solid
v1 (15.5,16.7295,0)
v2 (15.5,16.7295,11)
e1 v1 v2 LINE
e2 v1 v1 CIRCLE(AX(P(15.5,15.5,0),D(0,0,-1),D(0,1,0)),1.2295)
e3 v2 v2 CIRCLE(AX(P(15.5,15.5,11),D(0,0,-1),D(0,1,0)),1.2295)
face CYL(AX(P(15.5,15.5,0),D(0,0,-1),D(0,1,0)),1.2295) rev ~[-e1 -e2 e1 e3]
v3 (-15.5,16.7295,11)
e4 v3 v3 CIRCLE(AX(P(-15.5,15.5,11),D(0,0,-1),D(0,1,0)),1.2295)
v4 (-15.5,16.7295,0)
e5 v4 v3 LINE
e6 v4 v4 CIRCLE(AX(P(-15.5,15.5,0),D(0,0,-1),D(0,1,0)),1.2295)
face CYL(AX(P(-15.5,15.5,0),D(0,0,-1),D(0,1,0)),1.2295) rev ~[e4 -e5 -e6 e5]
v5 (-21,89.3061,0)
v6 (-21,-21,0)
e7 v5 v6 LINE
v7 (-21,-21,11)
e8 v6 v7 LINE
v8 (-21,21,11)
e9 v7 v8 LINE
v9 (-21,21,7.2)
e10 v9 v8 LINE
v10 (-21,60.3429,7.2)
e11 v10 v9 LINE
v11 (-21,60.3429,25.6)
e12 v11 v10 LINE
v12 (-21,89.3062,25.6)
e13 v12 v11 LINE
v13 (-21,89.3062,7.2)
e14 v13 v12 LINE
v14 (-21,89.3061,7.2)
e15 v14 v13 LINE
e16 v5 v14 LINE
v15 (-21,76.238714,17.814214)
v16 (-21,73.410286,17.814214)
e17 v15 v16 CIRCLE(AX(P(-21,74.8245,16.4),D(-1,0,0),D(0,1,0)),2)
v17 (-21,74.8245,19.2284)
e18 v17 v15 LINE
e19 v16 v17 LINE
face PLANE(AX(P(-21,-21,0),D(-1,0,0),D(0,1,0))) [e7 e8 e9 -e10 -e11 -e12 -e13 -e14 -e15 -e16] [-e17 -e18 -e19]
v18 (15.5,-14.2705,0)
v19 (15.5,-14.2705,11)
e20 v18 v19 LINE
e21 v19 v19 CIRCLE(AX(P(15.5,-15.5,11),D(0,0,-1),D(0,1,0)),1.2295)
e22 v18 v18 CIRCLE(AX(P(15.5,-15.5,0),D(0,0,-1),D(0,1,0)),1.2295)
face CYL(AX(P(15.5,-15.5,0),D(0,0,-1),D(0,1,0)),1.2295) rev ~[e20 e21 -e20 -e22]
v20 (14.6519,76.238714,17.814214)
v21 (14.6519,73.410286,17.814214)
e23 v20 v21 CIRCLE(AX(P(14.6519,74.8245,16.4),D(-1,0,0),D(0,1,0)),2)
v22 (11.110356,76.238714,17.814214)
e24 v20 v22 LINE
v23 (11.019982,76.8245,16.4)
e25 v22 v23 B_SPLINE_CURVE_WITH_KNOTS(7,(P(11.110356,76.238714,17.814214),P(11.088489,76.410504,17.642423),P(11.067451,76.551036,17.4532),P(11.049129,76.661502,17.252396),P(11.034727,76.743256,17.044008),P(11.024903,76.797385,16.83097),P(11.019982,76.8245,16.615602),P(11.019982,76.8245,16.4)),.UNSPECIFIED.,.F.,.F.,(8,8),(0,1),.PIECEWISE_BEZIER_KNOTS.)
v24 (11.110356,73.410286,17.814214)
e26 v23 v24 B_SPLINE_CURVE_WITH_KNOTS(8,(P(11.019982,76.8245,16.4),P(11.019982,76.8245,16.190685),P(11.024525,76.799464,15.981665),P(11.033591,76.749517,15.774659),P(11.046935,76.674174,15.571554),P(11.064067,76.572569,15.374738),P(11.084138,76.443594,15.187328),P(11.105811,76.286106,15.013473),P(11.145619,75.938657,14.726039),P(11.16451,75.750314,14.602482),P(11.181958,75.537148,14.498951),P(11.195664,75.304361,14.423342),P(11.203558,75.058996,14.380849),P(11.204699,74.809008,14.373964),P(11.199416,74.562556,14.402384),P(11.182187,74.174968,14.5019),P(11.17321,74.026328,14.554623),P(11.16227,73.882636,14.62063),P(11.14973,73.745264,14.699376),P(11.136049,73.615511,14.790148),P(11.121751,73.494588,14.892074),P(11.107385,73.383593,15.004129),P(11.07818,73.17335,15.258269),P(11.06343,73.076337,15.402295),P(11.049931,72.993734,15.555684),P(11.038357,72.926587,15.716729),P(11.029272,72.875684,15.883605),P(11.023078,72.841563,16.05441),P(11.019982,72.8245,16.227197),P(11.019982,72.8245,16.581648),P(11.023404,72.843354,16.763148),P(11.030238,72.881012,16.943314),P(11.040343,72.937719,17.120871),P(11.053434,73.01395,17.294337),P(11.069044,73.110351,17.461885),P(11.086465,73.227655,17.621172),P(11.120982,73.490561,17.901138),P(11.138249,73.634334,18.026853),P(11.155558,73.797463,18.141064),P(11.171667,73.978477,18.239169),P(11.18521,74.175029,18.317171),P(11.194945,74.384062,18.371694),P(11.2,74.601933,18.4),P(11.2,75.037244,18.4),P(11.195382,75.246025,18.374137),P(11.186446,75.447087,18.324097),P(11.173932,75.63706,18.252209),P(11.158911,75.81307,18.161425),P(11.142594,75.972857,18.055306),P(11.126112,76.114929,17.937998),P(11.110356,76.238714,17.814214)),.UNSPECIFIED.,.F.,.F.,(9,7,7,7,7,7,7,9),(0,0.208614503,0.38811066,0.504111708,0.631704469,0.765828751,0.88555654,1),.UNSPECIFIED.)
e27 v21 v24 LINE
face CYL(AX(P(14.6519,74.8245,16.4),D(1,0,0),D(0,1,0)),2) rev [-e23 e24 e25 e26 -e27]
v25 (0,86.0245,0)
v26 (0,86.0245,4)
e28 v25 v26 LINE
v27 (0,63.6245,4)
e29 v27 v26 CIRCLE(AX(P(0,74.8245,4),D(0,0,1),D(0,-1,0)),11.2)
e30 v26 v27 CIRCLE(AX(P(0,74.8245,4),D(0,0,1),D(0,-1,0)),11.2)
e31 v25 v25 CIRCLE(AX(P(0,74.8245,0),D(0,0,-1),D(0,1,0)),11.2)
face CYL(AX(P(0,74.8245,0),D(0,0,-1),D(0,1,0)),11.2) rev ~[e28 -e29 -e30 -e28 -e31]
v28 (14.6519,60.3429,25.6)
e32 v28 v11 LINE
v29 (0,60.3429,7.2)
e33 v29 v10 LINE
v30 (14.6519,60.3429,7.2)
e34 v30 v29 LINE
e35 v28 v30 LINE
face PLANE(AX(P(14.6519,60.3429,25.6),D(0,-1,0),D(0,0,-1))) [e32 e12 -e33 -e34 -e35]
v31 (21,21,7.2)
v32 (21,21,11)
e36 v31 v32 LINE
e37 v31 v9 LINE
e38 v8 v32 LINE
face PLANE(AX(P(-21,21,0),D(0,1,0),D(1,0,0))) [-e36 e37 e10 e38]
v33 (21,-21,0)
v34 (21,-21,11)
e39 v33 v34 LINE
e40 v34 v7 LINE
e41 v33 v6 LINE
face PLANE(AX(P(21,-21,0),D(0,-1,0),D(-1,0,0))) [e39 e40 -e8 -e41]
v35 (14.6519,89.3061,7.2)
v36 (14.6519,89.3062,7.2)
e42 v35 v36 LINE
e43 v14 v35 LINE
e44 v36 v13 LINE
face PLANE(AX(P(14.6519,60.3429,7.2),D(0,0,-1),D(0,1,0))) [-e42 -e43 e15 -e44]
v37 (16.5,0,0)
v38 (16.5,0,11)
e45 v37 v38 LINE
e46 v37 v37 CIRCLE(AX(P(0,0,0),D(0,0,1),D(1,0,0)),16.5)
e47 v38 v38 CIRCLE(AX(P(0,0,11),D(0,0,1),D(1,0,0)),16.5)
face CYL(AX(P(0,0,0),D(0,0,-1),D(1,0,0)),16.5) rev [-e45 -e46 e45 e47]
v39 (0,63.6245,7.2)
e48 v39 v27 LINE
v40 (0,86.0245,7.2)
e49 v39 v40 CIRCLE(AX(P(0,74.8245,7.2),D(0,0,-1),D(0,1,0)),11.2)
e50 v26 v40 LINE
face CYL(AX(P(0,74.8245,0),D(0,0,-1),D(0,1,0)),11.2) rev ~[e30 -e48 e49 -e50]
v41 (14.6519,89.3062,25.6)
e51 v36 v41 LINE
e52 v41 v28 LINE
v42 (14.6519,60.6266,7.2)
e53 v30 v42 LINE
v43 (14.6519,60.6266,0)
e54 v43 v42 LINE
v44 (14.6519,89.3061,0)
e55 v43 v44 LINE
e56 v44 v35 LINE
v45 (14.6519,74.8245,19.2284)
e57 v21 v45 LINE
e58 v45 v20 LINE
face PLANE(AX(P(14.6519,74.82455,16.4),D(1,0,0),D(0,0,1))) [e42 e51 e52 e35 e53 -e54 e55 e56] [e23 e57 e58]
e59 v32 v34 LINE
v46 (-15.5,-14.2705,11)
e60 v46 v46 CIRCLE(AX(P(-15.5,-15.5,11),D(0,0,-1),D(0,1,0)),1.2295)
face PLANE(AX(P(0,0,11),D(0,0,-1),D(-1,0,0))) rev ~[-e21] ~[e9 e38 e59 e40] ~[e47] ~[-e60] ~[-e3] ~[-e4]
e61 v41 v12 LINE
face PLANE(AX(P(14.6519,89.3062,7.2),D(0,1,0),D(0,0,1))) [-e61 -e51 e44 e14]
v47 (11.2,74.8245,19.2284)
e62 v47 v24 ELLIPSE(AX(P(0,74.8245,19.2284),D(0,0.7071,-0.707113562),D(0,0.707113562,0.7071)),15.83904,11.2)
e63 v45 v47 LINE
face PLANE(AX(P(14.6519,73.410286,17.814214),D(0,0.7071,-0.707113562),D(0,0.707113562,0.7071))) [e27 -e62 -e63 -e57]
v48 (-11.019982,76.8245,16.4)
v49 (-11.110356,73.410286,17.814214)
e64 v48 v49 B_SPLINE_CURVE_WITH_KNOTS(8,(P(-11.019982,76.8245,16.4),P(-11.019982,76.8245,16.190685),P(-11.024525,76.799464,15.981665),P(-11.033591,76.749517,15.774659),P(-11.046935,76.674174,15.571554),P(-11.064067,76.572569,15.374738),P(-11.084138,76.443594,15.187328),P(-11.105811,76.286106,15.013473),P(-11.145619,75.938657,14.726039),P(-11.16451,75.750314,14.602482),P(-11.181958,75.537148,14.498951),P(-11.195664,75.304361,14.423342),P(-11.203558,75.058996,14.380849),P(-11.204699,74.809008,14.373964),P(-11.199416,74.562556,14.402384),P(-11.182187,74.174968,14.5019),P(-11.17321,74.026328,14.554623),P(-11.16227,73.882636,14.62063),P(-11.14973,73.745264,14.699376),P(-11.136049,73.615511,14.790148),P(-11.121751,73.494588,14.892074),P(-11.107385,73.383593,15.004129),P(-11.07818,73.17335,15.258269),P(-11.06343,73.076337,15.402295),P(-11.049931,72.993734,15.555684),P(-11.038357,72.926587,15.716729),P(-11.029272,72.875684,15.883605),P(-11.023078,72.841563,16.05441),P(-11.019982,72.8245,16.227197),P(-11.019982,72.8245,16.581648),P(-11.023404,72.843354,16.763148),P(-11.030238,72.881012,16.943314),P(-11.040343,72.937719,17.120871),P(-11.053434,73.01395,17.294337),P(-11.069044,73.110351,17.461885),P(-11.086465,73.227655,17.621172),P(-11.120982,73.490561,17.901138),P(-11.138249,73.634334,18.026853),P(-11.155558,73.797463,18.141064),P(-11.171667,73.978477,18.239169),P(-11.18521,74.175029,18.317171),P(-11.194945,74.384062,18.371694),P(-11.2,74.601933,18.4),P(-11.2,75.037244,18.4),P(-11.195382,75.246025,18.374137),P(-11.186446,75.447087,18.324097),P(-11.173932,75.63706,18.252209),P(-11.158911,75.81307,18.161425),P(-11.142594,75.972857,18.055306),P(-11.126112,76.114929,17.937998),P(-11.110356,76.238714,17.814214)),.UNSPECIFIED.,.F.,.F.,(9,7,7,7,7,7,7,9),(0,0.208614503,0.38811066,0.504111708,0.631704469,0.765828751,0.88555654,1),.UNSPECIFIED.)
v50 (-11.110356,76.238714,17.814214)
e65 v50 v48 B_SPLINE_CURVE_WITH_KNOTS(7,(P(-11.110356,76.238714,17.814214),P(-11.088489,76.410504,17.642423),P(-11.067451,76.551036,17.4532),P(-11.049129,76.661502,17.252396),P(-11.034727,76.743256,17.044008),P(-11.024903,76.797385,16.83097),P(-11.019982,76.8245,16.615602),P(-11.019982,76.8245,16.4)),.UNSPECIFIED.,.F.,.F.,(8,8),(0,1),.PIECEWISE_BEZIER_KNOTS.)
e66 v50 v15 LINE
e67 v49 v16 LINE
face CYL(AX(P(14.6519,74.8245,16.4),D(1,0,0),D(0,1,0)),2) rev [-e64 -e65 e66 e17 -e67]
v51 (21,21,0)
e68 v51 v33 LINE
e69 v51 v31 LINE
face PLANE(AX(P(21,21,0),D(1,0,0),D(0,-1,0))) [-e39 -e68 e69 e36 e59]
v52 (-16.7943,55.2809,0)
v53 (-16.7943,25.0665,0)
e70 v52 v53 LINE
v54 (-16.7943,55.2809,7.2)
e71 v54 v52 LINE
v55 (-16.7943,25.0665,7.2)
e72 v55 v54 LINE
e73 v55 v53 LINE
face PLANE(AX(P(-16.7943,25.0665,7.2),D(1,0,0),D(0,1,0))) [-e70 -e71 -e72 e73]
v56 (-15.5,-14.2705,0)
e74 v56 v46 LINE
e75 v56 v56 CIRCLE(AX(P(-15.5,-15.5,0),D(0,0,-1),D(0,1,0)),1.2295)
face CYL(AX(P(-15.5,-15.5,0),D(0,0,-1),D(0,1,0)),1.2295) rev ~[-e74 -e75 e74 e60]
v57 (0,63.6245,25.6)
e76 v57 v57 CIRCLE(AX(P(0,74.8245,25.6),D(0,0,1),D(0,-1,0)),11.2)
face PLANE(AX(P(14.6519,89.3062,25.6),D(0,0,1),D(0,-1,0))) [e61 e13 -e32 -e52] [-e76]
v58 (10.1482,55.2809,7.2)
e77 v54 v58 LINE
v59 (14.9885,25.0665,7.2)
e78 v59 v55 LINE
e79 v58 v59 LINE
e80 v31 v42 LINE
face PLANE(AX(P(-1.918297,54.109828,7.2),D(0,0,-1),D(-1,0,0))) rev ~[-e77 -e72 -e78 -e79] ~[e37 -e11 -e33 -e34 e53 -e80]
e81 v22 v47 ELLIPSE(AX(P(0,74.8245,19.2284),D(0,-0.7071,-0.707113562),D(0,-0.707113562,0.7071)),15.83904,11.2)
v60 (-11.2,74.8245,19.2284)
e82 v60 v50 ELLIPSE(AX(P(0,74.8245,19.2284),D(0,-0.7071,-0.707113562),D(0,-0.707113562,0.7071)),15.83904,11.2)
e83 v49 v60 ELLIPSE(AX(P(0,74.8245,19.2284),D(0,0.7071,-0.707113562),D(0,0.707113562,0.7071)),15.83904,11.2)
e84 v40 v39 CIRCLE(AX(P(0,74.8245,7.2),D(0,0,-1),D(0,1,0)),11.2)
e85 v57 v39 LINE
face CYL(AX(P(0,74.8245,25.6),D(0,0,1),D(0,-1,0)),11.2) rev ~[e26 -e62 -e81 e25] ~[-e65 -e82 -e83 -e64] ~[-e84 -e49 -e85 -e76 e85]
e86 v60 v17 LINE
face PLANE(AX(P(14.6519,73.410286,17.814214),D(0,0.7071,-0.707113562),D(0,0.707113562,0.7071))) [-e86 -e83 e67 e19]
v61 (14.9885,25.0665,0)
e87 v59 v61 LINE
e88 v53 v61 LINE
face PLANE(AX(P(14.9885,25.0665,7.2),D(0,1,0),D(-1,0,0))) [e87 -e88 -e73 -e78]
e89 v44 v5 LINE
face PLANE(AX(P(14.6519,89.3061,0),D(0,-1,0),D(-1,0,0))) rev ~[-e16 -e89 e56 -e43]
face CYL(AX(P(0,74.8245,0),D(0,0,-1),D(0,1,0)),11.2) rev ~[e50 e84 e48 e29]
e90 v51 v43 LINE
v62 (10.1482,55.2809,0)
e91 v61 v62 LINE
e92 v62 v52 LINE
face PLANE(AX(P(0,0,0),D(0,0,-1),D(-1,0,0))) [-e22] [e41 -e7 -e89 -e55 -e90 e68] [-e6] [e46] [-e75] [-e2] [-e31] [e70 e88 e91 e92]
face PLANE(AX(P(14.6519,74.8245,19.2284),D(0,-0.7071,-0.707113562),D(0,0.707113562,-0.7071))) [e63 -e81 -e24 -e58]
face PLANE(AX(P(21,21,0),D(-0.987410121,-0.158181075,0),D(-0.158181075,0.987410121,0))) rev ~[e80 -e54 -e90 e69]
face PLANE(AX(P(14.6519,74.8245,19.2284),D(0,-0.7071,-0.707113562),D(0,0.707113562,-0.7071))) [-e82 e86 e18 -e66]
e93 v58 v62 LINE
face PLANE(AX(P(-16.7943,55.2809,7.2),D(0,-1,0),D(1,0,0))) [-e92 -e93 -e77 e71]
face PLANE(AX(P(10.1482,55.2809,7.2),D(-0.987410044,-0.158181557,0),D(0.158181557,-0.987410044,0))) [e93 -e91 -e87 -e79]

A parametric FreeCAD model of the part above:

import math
import FreeCAD as App
import Part
import Sketcher

V = App.Vector

doc = App.newDocument("Part")
params = doc.addObject("Spreadsheet::Sheet", "Params")
for row, (alias, value) in enumerate([
    ("sketch1_diameter", "33 mm"),
    ("sketch1_width", "42 mm"),
    ("pad1_length", "11 mm"),
    ("pocket1_length", "24 mm"),
    ("sketch3_diameter", "22.4 mm"),
    ("sketch3_width", "42 mm"),
    ("pad2_length", "7.2 mm"),
    ("pocket2_length", "194 mm"),
    ("sketch5_diameter", "9.5 mm"),
    ("pad3_length", "3 mm"),
    ("sketch6_radius", "2 mm"),
    ("sketch6_height", "18.4 mm"),
    ("pad4_length", "35.6519 mm"),
    ("sketch7_diameter", "5 mm"),
    ("pocket3_length", "682 mm"),
    ("sketch8_diameter", "22.4 mm"),
    ("pocket4_length", "21.6 mm"),
], start=1):
    params.set(f"A{row}", alias)
    params.set(f"B{row}", "=" + value)
    params.setAlias(f"B{row}", alias)

body = doc.addObject("PartDesign::Body", "Body")

sketch1 = doc.addObject("Sketcher::SketchObject", "Sketch")
body.addObject(sketch1)
sketch1.AttachmentSupport = (doc.XY_Plane, [""])
sketch1.MapMode = "FlatFace"
sketch1.addGeometry([
    Part.LineSegment(V(21, 21, 0), V(-21, 21, 0)),
    Part.LineSegment(V(-21, 21, 0), V(-21, -21, 0)),
    Part.LineSegment(V(-21, -21, 0), V(21, -21, 0)),
    Part.LineSegment(V(21, -21, 0), V(21, 21, 0)),
    Part.Circle(V(0, 0, 0), V(0, 0, 1), 16.5),
], False)
sketch1.addConstraint([
    Sketcher.Constraint("Coincident", 0, 2, 1, 1),
    Sketcher.Constraint("Coincident", 1, 2, 2, 1),
    Sketcher.Constraint("Coincident", 2, 2, 3, 1),
    Sketcher.Constraint("Coincident", 3, 2, 0, 1),
    Sketcher.Constraint("Horizontal", 0),
    Sketcher.Constraint("Vertical", 1),
    Sketcher.Constraint("Horizontal", 2),
    Sketcher.Constraint("Vertical", 3),
    Sketcher.Constraint("Coincident", 4, 3, -1, 1),
    Sketcher.Constraint("Symmetric", 0, 2, 2, 2, -1, 1),
    Sketcher.Constraint("Equal", 2, 1),
    Sketcher.Constraint("Diameter", 4, 33.0),
    Sketcher.Constraint("DistanceX", 0, 2, 0, 1, 42.0),
])
sketch1.setExpression("Constraints[11]", "Params.sketch1_diameter")
sketch1.setExpression("Constraints[12]", "Params.sketch1_width")
pad1 = doc.addObject("PartDesign::Pad", "Pad")
body.addObject(pad1)
pad1.Profile = sketch1
pad1.setExpression("Length", "Params.pad1_length")

sketch2 = doc.addObject("Sketcher::SketchObject", "Sketch001")
body.addObject(sketch2)
sketch2.AttachmentSupport = (doc.XY_Plane, [""])
sketch2.MapMode = "FlatFace"
sketch2.addGeometry([
    Part.Circle(V(15.5, -15.5, 0), V(0, 0, 1), 1.2295),
    Part.Circle(V(15.5, 15.5, 0), V(0, 0, 1), 1.2295),
    Part.Circle(V(-15.5, -15.5, 0), V(0, 0, 1), 1.2295),
    Part.Circle(V(-15.5, 15.5, 0), V(0, 0, 1), 1.2295),
], False)
sketch2.addConstraint([
    Sketcher.Constraint("Equal", 0, 1),
    Sketcher.Constraint("Equal", 1, 2),
    Sketcher.Constraint("Equal", 2, 3),
    Sketcher.Constraint("Symmetric", 1, 3, 2, 3, -1, 1),
    Sketcher.Constraint("Symmetric", 0, 3, 3, 3, -1, 1),
    Sketcher.Constraint("Symmetric", 0, 3, 2, 3, -2),
    Sketcher.Constraint("Diameter", 0, 2.459),
    Sketcher.Constraint("DistanceY", 0, 3, 1, 3, 31.0),
    Sketcher.Constraint("DistanceX", 2, 3, 0, 3, 31.0),
])
pocket1 = doc.addObject("PartDesign::Pocket", "Pocket")
body.addObject(pocket1)
pocket1.Profile = sketch2
pocket1.setExpression("Length", "Params.pocket1_length")
pocket1.Reversed = True

sketch3 = doc.addObject("Sketcher::SketchObject", "Sketch002")
body.addObject(sketch3)
sketch3.AttachmentSupport = (doc.XY_Plane, [""])
sketch3.MapMode = "FlatFace"
sketch3.addGeometry([
    Part.LineSegment(V(14.6519, 60.6266, 0), V(21, 21, 0)),
    Part.LineSegment(V(21, 21, 0), V(-21, 21, 0)),
    Part.LineSegment(V(-21, 21, 0), V(-21, 89.3061, 0)),
    Part.LineSegment(V(-21, 89.3061, 0), V(14.6519, 89.3061, 0)),
    Part.LineSegment(V(14.6519, 89.3061, 0), V(14.6519, 60.6266, 0)),
    Part.Circle(V(0, 74.8245, 0), V(0, 0, 1), 11.2),
], False)
sketch3.addConstraint([
    Sketcher.Constraint("Coincident", 0, 2, 1, 1),
    Sketcher.Constraint("Coincident", 1, 2, 2, 1),
    Sketcher.Constraint("Coincident", 2, 2, 3, 1),
    Sketcher.Constraint("Coincident", 3, 2, 4, 1),
    Sketcher.Constraint("Coincident", 4, 2, 0, 1),
    Sketcher.Constraint("Horizontal", 1),
    Sketcher.Constraint("Vertical", 2),
    Sketcher.Constraint("Horizontal", 3),
    Sketcher.Constraint("Vertical", 4),
    Sketcher.Constraint("PointOnObject", 5, 3, -2),
    Sketcher.Constraint("Diameter", 5, 22.4),
    Sketcher.Constraint("DistanceX", 1, 2, 1, 1, 42.0),
    Sketcher.Constraint("DistanceX", -1, 1, 0, 2, 21.0),
    Sketcher.Constraint("DistanceY", -1, 1, 0, 2, 21.0),
    Sketcher.Constraint("DistanceX", 3, 1, 3, 2, 35.652),
    Sketcher.Constraint("DistanceY", 2, 1, 2, 2, 68.306),
    Sketcher.Constraint("DistanceY", 4, 2, 4, 1, 28.6795),
    Sketcher.Constraint("DistanceY", 4, 2, 5, 3, 14.198),
])
sketch3.setExpression("Constraints[10]", "Params.sketch3_diameter")
sketch3.setExpression("Constraints[11]", "Params.sketch3_width")
pad2 = doc.addObject("PartDesign::Pad", "Pad001")
body.addObject(pad2)
pad2.Profile = sketch3
pad2.setExpression("Length", "Params.pad2_length")

sketch4 = doc.addObject("Sketcher::SketchObject", "Sketch003")
body.addObject(sketch4)
sketch4.AttachmentSupport = (doc.XY_Plane, [""])
sketch4.MapMode = "FlatFace"
sketch4.AttachmentOffset = App.Placement(V(0, 0, 7.2), App.Rotation())
sketch4.addGeometry([
    Part.LineSegment(V(-16.7943, 55.2809, 0), V(-16.7943, 25.0665, 0)),
    Part.LineSegment(V(-16.7943, 25.0665, 0), V(14.9885, 25.0665, 0)),
    Part.LineSegment(V(14.9885, 25.0665, 0), V(10.1482, 55.2809, 0)),
    Part.LineSegment(V(10.1482, 55.2809, 0), V(-16.7943, 55.2809, 0)),
], False)
sketch4.addConstraint([
    Sketcher.Constraint("Coincident", 0, 2, 1, 1),
    Sketcher.Constraint("Coincident", 1, 2, 2, 1),
    Sketcher.Constraint("Coincident", 2, 2, 3, 1),
    Sketcher.Constraint("Coincident", 3, 2, 0, 1),
    Sketcher.Constraint("Vertical", 0),
    Sketcher.Constraint("Horizontal", 1),
    Sketcher.Constraint("Horizontal", 3),
    Sketcher.Constraint("DistanceX", 1, 1, 1, 2, 31.7828),
    Sketcher.Constraint("DistanceX", 3, 2, 3, 1, 26.9425),
    Sketcher.Constraint("DistanceY", 0, 2, 0, 1, 30.2144),
    Sketcher.Constraint("DistanceY", -1, 1, 2, 2, 55.281),
    Sketcher.Constraint("DistanceX", 0, 2, -1, 1, 16.7943),
])
pocket2 = doc.addObject("PartDesign::Pocket", "Pocket001")
body.addObject(pocket2)
pocket2.Profile = sketch4
pocket2.setExpression("Length", "Params.pocket2_length")

sketch5 = doc.addObject("Sketcher::SketchObject", "Sketch004")
body.addObject(sketch5)
sketch5.AttachmentSupport = (doc.XY_Plane, [""])
sketch5.MapMode = "FlatFace"
sketch5.AttachmentOffset = App.Placement(V(0, 0, 7.2), App.Rotation())
sketch5.addGeometry([
    Part.Circle(V(0, 74.8245, 0), V(0, 0, 1), 14.4816),
    Part.Circle(V(0, 74.8245, 0), V(0, 0, 1), 4.75),
], False)
sketch5.addConstraint([
    Sketcher.Constraint("Coincident", 1, 3, 0, 3),
    Sketcher.Constraint("PointOnObject", 0, 3, -2),
    Sketcher.Constraint("Diameter", 1, 9.5),
    Sketcher.Constraint("Diameter", 0, 28.9632),
    Sketcher.Constraint("DistanceY", -1, 1, 0, 3, 74.8245),
])
sketch5.setExpression("Constraints[2]", "Params.sketch5_diameter")
pad3 = doc.addObject("PartDesign::Pad", "Pad002")
body.addObject(pad3)
pad3.Profile = sketch5
pad3.setExpression("Length", "Params.pad3_length")

sketch6 = doc.addObject("Sketcher::SketchObject", "Sketch005")
body.addObject(sketch6)
sketch6.AttachmentSupport = (doc.YZ_Plane, [""])
sketch6.MapMode = "FlatFace"
sketch6.AttachmentOffset = App.Placement(V(0, 0, 14.6519), App.Rotation())
sketch6.addGeometry([
    Part.LineSegment(V(60.3429, 25.6, 0), V(60.3429, 7.2, 0)),
    Part.LineSegment(V(60.3429, 7.2, 0), V(89.3062, 7.2, 0)),
    Part.LineSegment(V(89.3062, 7.2, 0), V(89.3062, 25.6, 0)),
    Part.LineSegment(V(89.3062, 25.6, 0), V(60.3429, 25.6, 0)),
    Part.ArcOfCircle(Part.Circle(V(74.8245, 16.4, 0), V(0, 0, 1), 1.999981), math.radians(135), math.radians(405)),
    Part.LineSegment(V(73.4103, 17.8142, 0), V(74.8245, 19.2284, 0)),
    Part.LineSegment(V(74.8245, 19.2284, 0), V(76.2387, 17.8142, 0)),
], False)
sketch6.addConstraint([
    Sketcher.Constraint("Coincident", 0, 2, 1, 1),
    Sketcher.Constraint("Coincident", 1, 2, 2, 1),
    Sketcher.Constraint("Coincident", 2, 2, 3, 1),
    Sketcher.Constraint("Coincident", 3, 2, 0, 1),
    Sketcher.Constraint("Tangent", 4, 1, 5, 1),
    Sketcher.Constraint("Coincident", 5, 2, 6, 1),
    Sketcher.Constraint("Tangent", 6, 2, 4, 2),
    Sketcher.Constraint("Vertical", 0),
    Sketcher.Constraint("Horizontal", 1),
    Sketcher.Constraint("Vertical", 2),
    Sketcher.Constraint("Horizontal", 3),
    Sketcher.Constraint("Perpendicular", 5, 6),
    Sketcher.Constraint("Horizontal", 4, 1, 6, 2),
    Sketcher.Constraint("Radius", 4, 2.0),
    Sketcher.Constraint("DistanceY", 0, 2, 0, 1, 18.4),
    Sketcher.Constraint("DistanceY", -1, 1, 4, 3, 16.4),
    Sketcher.Constraint("DistanceY", -1, 1, 0, 2, 7.2),
    Sketcher.Constraint("DistanceX", 1, 1, 1, 2, 28.9633),
    Sketcher.Constraint("DistanceX", -1, 1, 0, 2, 60.343),
    Sketcher.Constraint("DistanceX", 4, 1, 2, 2, 15.896),
])
sketch6.setExpression("Constraints[13]", "Params.sketch6_radius")
sketch6.setExpression("Constraints[14]", "Params.sketch6_height")
pad4 = doc.addObject("PartDesign::Pad", "Pad003")
body.addObject(pad4)
pad4.Profile = sketch6
pad4.setExpression("Length", "Params.pad4_length")
pad4.Reversed = True

sketch7 = doc.addObject("Sketcher::SketchObject", "Sketch006")
body.addObject(sketch7)
sketch7.AttachmentSupport = (doc.XY_Plane, [""])
sketch7.MapMode = "FlatFace"
sketch7.addGeometry(Part.Circle(V(0, 74.8245, 0), V(0, 0, 1), 2.5), False)
sketch7.addConstraint([
    Sketcher.Constraint("PointOnObject", 0, 3, -2),
    Sketcher.Constraint("Diameter", 0, 5.0),
    Sketcher.Constraint("DistanceY", -1, 1, 0, 3, 74.8245),
])
sketch7.setExpression("Constraints[1]", "Params.sketch7_diameter")
pocket3 = doc.addObject("PartDesign::Pocket", "Pocket002")
body.addObject(pocket3)
pocket3.Profile = sketch7
pocket3.setExpression("Length", "Params.pocket3_length")
pocket3.Reversed = True

sketch8 = doc.addObject("Sketcher::SketchObject", "Sketch007")
body.addObject(sketch8)
sketch8.AttachmentSupport = (doc.XY_Plane, [""])
sketch8.MapMode = "FlatFace"
sketch8.AttachmentOffset = App.Placement(V(0, 0, 25.6), App.Rotation())
sketch8.addGeometry(Part.Circle(V(0, 74.8245, 0), V(0, 0, 1), 11.2), False)
sketch8.addConstraint([
    Sketcher.Constraint("PointOnObject", 0, 3, -2),
    Sketcher.Constraint("Diameter", 0, 22.4),
    Sketcher.Constraint("DistanceY", -1, 1, 0, 3, 74.8245),
])
sketch8.setExpression("Constraints[1]", "Params.sketch8_diameter")
pocket4 = doc.addObject("PartDesign::Pocket", "Pocket003")
body.addObject(pocket4)
pocket4.Profile = sketch8
pocket4.setExpression("Length", "Params.pocket4_length")

doc.recompute()
